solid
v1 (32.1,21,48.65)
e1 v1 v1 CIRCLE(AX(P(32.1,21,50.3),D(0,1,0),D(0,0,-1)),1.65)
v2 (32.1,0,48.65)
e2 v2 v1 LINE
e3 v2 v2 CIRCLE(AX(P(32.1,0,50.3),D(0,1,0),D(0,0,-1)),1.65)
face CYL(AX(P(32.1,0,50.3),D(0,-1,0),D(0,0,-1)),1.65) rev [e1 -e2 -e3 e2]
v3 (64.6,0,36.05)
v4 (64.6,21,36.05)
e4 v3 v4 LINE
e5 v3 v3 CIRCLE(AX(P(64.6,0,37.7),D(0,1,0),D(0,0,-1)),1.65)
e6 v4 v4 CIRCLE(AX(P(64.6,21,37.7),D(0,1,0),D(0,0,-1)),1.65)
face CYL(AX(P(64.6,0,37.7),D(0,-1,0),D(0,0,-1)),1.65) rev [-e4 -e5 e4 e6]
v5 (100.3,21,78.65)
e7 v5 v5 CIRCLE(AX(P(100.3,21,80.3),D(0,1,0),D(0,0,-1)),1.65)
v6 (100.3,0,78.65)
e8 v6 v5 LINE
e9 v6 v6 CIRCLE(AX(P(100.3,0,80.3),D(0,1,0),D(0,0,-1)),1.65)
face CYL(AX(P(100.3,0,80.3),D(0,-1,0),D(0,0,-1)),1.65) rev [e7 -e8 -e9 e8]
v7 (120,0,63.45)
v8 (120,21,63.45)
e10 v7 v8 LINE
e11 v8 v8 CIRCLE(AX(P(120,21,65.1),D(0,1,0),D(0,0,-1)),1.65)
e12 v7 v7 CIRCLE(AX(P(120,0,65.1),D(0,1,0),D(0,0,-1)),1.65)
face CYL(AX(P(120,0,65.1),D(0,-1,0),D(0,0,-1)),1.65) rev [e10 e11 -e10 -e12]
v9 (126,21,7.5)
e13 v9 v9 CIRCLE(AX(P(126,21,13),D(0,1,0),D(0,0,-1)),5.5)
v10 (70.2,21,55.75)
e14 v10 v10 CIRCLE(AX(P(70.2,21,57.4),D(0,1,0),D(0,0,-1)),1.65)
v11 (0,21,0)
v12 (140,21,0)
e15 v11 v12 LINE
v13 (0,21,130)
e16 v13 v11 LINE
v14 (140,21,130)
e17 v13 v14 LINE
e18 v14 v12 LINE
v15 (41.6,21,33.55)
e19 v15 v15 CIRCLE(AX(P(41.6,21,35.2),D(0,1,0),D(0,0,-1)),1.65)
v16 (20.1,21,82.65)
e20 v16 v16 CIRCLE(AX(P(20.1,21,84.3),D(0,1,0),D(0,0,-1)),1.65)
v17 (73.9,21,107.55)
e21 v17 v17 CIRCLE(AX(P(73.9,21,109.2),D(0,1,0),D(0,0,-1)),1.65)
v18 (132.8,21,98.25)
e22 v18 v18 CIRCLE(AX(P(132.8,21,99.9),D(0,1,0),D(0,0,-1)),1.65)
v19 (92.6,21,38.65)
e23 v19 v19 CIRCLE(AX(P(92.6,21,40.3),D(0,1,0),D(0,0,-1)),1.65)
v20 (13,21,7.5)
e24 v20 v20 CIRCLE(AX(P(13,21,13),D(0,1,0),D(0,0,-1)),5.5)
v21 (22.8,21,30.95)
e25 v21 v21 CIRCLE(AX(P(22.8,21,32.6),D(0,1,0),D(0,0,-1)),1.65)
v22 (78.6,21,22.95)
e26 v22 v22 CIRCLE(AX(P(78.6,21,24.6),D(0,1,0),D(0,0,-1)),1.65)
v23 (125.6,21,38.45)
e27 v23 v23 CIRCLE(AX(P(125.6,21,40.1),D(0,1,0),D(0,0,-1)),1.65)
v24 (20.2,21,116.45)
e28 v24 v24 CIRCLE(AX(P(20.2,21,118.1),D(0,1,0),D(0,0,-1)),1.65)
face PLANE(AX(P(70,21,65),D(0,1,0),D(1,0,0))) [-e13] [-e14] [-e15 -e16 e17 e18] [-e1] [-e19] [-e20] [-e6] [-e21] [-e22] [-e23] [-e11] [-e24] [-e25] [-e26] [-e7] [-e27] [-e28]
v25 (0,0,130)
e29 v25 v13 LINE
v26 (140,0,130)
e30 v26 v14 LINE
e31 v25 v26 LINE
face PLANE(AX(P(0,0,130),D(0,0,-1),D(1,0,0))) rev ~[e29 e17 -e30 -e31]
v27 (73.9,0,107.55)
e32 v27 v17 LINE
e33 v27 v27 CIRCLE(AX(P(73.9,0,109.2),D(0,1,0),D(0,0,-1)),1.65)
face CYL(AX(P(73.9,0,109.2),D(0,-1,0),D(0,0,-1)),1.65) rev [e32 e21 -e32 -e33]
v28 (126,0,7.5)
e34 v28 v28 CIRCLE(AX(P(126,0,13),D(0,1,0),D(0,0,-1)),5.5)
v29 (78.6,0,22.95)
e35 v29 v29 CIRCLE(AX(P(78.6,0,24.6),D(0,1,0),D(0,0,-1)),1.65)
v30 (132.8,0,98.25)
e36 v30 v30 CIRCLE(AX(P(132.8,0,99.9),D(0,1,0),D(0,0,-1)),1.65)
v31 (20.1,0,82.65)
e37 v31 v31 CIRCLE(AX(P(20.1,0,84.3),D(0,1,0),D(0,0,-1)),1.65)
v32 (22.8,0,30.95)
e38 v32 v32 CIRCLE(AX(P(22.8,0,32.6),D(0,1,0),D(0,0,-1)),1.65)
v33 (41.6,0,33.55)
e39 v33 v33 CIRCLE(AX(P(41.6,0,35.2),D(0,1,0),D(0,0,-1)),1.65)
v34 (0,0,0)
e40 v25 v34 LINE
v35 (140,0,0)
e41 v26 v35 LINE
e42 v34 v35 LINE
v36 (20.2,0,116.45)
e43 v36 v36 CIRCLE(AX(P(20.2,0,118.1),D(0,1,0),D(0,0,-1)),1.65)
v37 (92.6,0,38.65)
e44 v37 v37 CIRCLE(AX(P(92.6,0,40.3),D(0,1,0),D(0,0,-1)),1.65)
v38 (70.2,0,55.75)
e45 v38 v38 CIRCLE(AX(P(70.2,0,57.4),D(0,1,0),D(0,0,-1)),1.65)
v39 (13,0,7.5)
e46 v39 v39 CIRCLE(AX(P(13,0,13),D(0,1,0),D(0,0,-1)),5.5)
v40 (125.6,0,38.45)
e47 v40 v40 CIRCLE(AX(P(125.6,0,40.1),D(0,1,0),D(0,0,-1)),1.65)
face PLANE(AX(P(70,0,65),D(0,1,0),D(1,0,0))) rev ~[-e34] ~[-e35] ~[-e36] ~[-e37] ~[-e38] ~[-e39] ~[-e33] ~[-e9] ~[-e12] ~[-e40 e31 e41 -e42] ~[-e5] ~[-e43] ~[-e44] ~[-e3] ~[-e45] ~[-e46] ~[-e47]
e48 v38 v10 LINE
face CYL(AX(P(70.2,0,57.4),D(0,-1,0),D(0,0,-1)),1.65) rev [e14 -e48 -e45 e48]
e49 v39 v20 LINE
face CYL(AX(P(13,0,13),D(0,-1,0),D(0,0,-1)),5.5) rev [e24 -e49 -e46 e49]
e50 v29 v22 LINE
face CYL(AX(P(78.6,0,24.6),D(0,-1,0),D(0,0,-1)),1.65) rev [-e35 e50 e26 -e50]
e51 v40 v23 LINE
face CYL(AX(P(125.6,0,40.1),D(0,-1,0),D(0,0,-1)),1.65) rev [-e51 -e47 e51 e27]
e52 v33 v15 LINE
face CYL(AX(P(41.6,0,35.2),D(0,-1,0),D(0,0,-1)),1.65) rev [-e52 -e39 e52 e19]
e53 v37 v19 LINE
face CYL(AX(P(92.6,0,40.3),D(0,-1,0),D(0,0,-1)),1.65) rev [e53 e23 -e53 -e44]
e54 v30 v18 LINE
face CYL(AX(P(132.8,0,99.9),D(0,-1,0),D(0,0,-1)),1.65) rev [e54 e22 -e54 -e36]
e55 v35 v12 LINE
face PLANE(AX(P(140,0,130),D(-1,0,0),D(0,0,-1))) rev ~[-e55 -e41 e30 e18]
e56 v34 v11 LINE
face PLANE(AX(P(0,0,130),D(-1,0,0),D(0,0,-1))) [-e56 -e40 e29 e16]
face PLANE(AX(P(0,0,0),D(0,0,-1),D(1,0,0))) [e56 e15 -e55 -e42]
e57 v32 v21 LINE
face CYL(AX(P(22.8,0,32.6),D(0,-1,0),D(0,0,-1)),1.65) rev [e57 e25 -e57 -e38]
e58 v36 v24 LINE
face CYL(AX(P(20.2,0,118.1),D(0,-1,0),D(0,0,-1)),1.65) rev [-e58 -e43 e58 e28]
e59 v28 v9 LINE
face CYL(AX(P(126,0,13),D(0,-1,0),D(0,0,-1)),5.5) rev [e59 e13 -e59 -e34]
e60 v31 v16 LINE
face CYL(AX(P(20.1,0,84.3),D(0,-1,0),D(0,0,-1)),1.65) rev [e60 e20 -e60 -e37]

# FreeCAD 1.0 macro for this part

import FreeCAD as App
import Part
import Sketcher

V = App.Vector
Q = App.Units.Quantity


def add_polygon(sketch, points):
    """Adds a closed chain of lines whose ends are joined by coincident constraints."""
    first, n = sketch.GeometryCount, len(points)
    for a, b in zip(points, points[1:] + points[:1]):
        sketch.addGeometry(Part.LineSegment(App.Vector(*a, 0), App.Vector(*b, 0)), False)
    for i in range(n):
        sketch.addConstraint(Sketcher.Constraint("Coincident", first + i, 2, first + (i + 1) % n, 1))

doc = App.newDocument("Part")
body = doc.addObject("PartDesign::Body", "Body")

sketch1 = doc.addObject("Sketcher::SketchObject", "Sketch")
body.addObject(sketch1)
sketch1.AttachmentSupport = (doc.XZ_Plane, [""])
sketch1.MapMode = "FlatFace"
add_polygon(sketch1, [(0, 0), (0, 130), (140, 130), (140, 0)])
sketch1.addGeometry(Part.Circle(V(20.2, 118.1, 0), V(0, 0, 1), 1.65), False)
sketch1.addGeometry(Part.Circle(V(20.1, 84.3, 0), V(0, 0, 1), 1.65), False)
sketch1.addGeometry(Part.Circle(V(73.9, 109.2, 0), V(0, 0, 1), 1.65), False)
sketch1.addGeometry(Part.Circle(V(132.8, 99.9, 0), V(0, 0, 1), 1.65), False)
sketch1.addGeometry(Part.Circle(V(100.3, 80.3, 0), V(0, 0, 1), 1.65), False)
sketch1.addGeometry(Part.Circle(V(120, 65.1, 0), V(0, 0, 1), 1.65), False)
sketch1.addGeometry(Part.Circle(V(32.1, 50.3, 0), V(0, 0, 1), 1.65), False)
sketch1.addGeometry(Part.Circle(V(70.2, 57.4, 0), V(0, 0, 1), 1.65), False)
sketch1.addGeometry(Part.Circle(V(64.6, 37.7, 0), V(0, 0, 1), 1.65), False)
sketch1.addGeometry(Part.Circle(V(22.8, 32.6, 0), V(0, 0, 1), 1.65), False)
sketch1.addGeometry(Part.Circle(V(13, 13, 0), V(0, 0, 1), 5.5), False)
sketch1.addGeometry(Part.Circle(V(41.6, 35.2, 0), V(0, 0, 1), 1.65), False)
sketch1.addGeometry(Part.Circle(V(92.6, 40.3, 0), V(0, 0, 1), 1.65), False)
sketch1.addGeometry(Part.Circle(V(125.6, 40.1, 0), V(0, 0, 1), 1.65), False)
sketch1.addGeometry(Part.Circle(V(78.6, 24.6, 0), V(0, 0, 1), 1.65), False)
sketch1.addGeometry(Part.Circle(V(126, 13, 0), V(0, 0, 1), 5.5), False)
sketch1.addConstraint([
    Sketcher.Constraint("Vertical", 0),
    Sketcher.Constraint("Horizontal", 1),
    Sketcher.Constraint("Vertical", 2),
    Sketcher.Constraint("Horizontal", 3),
    Sketcher.Constraint("Coincident", 3, 2, -1, 1),
    Sketcher.Constraint("Equal", 4, 5),
    Sketcher.Constraint("Equal", 5, 6),
    Sketcher.Constraint("Equal", 6, 7),
    Sketcher.Constraint("Equal", 7, 8),
    Sketcher.Constraint("Equal", 8, 9),
    Sketcher.Constraint("Equal", 9, 10),
    Sketcher.Constraint("Equal", 10, 11),
    Sketcher.Constraint("Equal", 11, 12),
    Sketcher.Constraint("Equal", 12, 13),
    Sketcher.Constraint("Equal", 13, 15),
    Sketcher.Constraint("Equal", 15, 16),
    Sketcher.Constraint("Equal", 16, 17),
    Sketcher.Constraint("Equal", 17, 18),
    Sketcher.Constraint("Equal", 14, 19),
    Sketcher.Constraint("Horizontal", 14, 3, 19, 3),
    Sketcher.Constraint("Diameter", 14, Q("11 mm")),
    Sketcher.Constraint("Diameter", 4, Q("3.3 mm")),
    Sketcher.Constraint("DistanceX", 1, 1, 1, 2, Q("140 mm")),
    Sketcher.Constraint("DistanceY", 0, 1, 0, 2, Q("130 mm")),
    Sketcher.Constraint("DistanceX", -1, 1, 9, 3, Q("120 mm")),
    Sketcher.Constraint("DistanceX", -1, 1, 14, 3, Q("13 mm")),
    Sketcher.Constraint("DistanceY", -1, 1, 14, 3, Q("13 mm")),
    Sketcher.Constraint("DistanceX", -1, 1, 19, 3, Q("126 mm")),
    Sketcher.Constraint("DistanceY", 8, 3, 5, 3, Q("4 mm")),
    Sketcher.Constraint("DistanceY", 9, 3, 4, 3, Q("53 mm")),
    Sketcher.Constraint("DistanceX", 5, 3, 10, 3, Q("12 mm")),
    Sketcher.Constraint("DistanceY", 10, 3, 5, 3, Q("34 mm")),
    Sketcher.Constraint("DistanceX", 15, 3, 12, 3, Q("23 mm")),
    Sketcher.Constraint("DistanceX", 12, 3, 16, 3, Q("28 mm")),
    Sketcher.Constraint("DistanceY", 16, 3, 8, 3, Q("40 mm")),
    Sketcher.Constraint("DistanceY", 17, 3, 9, 3, Q("25 mm")),
    Sketcher.Constraint("DistanceX", 16, 3, 17, 3, Q("33 mm")),
    Sketcher.Constraint("DistanceX", 12, 3, 18, 3, Q("14 mm")),
    Sketcher.Constraint("DistanceX", -1, 1, 4, 3, Q("20.2 mm")),
    Sketcher.Constraint("DistanceY", -1, 1, 4, 3, Q("118.1 mm")),
    Sketcher.Constraint("DistanceX", -1, 1, 5, 3, Q("20.1 mm")),
    Sketcher.Constraint("DistanceY", -1, 1, 5, 3, Q("84.3 mm")),
    Sketcher.Constraint("DistanceX", -1, 1, 6, 3, Q("73.9 mm")),
    Sketcher.Constraint("DistanceY", -1, 1, 6, 3, Q("109.2 mm")),
    Sketcher.Constraint("DistanceX", -1, 1, 7, 3, Q("132.8 mm")),
    Sketcher.Constraint("DistanceY", -1, 1, 7, 3, Q("99.9 mm")),
    Sketcher.Constraint("DistanceX", -1, 1, 8, 3, Q("100.3 mm")),
    Sketcher.Constraint("DistanceX", -1, 1, 11, 3, Q("70.2 mm")),
    Sketcher.Constraint("DistanceY", -1, 1, 11, 3, Q("57.4 mm")),
    Sketcher.Constraint("DistanceX", -1, 1, 12, 3, Q("64.6 mm")),
    Sketcher.Constraint("DistanceY", -1, 1, 12, 3, Q("37.7 mm")),
    Sketcher.Constraint("DistanceX", -1, 1, 13, 3, Q("22.8 mm")),
    Sketcher.Constraint("DistanceY", -1, 1, 13, 3, Q("32.6 mm")),
    Sketcher.Constraint("DistanceY", -1, 1, 15, 3, Q("35.2 mm")),
    Sketcher.Constraint("DistanceY", -1, 1, 18, 3, Q("24.6 mm")),
])
pad1 = doc.addObject("PartDesign::Pad", "Pad")
body.addObject(pad1)
pad1.Profile = sketch1
pad1.Length = 21
pad1.Reversed = True

doc.recompute()
